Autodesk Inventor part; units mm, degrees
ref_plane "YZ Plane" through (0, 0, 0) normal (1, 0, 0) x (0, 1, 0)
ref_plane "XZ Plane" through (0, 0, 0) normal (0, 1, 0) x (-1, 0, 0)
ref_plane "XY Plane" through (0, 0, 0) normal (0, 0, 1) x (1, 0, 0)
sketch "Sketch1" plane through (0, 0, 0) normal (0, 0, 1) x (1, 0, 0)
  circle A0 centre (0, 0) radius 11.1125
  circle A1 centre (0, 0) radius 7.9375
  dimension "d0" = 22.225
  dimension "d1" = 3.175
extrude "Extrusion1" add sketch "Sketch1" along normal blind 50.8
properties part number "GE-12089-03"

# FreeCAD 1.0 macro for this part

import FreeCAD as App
import Part
import Sketcher
Q = App.Units.Quantity

doc = App.newDocument("Part")
body = doc.addObject("PartDesign::Body", "Body")

# Sketch on XY plane
sketch1 = body.newObject("Sketcher::SketchObject", "Sketch")
sketch1.AttachmentSupport = (doc.getObject("XY_Plane"), [""])
sketch1.MapMode = "FlatFace"
sketch1.addGeometry(Part.Circle(App.Vector(0, 0, 0), App.Vector(0, 0, 1), 11.1125), False)
sketch1.addGeometry(Part.Circle(App.Vector(0, 0, 0), App.Vector(0, 0, 1), 7.9375), False)
sketch1.addConstraint(Sketcher.Constraint("Coincident", 0, 3, -1, 1))
sketch1.addConstraint(Sketcher.Constraint("Coincident", 1, 3, -1, 1))
sketch1.addConstraint(Sketcher.Constraint("Diameter", 0, Q("0.875 in")))
sketch1.addConstraint(Sketcher.Constraint("Diameter", 1, Q("0.625 in")))
pad1 = body.newObject("PartDesign::Pad", "Pad")
pad1.Profile = sketch1
pad1.Length = Q("2 in")

doc.recompute()
